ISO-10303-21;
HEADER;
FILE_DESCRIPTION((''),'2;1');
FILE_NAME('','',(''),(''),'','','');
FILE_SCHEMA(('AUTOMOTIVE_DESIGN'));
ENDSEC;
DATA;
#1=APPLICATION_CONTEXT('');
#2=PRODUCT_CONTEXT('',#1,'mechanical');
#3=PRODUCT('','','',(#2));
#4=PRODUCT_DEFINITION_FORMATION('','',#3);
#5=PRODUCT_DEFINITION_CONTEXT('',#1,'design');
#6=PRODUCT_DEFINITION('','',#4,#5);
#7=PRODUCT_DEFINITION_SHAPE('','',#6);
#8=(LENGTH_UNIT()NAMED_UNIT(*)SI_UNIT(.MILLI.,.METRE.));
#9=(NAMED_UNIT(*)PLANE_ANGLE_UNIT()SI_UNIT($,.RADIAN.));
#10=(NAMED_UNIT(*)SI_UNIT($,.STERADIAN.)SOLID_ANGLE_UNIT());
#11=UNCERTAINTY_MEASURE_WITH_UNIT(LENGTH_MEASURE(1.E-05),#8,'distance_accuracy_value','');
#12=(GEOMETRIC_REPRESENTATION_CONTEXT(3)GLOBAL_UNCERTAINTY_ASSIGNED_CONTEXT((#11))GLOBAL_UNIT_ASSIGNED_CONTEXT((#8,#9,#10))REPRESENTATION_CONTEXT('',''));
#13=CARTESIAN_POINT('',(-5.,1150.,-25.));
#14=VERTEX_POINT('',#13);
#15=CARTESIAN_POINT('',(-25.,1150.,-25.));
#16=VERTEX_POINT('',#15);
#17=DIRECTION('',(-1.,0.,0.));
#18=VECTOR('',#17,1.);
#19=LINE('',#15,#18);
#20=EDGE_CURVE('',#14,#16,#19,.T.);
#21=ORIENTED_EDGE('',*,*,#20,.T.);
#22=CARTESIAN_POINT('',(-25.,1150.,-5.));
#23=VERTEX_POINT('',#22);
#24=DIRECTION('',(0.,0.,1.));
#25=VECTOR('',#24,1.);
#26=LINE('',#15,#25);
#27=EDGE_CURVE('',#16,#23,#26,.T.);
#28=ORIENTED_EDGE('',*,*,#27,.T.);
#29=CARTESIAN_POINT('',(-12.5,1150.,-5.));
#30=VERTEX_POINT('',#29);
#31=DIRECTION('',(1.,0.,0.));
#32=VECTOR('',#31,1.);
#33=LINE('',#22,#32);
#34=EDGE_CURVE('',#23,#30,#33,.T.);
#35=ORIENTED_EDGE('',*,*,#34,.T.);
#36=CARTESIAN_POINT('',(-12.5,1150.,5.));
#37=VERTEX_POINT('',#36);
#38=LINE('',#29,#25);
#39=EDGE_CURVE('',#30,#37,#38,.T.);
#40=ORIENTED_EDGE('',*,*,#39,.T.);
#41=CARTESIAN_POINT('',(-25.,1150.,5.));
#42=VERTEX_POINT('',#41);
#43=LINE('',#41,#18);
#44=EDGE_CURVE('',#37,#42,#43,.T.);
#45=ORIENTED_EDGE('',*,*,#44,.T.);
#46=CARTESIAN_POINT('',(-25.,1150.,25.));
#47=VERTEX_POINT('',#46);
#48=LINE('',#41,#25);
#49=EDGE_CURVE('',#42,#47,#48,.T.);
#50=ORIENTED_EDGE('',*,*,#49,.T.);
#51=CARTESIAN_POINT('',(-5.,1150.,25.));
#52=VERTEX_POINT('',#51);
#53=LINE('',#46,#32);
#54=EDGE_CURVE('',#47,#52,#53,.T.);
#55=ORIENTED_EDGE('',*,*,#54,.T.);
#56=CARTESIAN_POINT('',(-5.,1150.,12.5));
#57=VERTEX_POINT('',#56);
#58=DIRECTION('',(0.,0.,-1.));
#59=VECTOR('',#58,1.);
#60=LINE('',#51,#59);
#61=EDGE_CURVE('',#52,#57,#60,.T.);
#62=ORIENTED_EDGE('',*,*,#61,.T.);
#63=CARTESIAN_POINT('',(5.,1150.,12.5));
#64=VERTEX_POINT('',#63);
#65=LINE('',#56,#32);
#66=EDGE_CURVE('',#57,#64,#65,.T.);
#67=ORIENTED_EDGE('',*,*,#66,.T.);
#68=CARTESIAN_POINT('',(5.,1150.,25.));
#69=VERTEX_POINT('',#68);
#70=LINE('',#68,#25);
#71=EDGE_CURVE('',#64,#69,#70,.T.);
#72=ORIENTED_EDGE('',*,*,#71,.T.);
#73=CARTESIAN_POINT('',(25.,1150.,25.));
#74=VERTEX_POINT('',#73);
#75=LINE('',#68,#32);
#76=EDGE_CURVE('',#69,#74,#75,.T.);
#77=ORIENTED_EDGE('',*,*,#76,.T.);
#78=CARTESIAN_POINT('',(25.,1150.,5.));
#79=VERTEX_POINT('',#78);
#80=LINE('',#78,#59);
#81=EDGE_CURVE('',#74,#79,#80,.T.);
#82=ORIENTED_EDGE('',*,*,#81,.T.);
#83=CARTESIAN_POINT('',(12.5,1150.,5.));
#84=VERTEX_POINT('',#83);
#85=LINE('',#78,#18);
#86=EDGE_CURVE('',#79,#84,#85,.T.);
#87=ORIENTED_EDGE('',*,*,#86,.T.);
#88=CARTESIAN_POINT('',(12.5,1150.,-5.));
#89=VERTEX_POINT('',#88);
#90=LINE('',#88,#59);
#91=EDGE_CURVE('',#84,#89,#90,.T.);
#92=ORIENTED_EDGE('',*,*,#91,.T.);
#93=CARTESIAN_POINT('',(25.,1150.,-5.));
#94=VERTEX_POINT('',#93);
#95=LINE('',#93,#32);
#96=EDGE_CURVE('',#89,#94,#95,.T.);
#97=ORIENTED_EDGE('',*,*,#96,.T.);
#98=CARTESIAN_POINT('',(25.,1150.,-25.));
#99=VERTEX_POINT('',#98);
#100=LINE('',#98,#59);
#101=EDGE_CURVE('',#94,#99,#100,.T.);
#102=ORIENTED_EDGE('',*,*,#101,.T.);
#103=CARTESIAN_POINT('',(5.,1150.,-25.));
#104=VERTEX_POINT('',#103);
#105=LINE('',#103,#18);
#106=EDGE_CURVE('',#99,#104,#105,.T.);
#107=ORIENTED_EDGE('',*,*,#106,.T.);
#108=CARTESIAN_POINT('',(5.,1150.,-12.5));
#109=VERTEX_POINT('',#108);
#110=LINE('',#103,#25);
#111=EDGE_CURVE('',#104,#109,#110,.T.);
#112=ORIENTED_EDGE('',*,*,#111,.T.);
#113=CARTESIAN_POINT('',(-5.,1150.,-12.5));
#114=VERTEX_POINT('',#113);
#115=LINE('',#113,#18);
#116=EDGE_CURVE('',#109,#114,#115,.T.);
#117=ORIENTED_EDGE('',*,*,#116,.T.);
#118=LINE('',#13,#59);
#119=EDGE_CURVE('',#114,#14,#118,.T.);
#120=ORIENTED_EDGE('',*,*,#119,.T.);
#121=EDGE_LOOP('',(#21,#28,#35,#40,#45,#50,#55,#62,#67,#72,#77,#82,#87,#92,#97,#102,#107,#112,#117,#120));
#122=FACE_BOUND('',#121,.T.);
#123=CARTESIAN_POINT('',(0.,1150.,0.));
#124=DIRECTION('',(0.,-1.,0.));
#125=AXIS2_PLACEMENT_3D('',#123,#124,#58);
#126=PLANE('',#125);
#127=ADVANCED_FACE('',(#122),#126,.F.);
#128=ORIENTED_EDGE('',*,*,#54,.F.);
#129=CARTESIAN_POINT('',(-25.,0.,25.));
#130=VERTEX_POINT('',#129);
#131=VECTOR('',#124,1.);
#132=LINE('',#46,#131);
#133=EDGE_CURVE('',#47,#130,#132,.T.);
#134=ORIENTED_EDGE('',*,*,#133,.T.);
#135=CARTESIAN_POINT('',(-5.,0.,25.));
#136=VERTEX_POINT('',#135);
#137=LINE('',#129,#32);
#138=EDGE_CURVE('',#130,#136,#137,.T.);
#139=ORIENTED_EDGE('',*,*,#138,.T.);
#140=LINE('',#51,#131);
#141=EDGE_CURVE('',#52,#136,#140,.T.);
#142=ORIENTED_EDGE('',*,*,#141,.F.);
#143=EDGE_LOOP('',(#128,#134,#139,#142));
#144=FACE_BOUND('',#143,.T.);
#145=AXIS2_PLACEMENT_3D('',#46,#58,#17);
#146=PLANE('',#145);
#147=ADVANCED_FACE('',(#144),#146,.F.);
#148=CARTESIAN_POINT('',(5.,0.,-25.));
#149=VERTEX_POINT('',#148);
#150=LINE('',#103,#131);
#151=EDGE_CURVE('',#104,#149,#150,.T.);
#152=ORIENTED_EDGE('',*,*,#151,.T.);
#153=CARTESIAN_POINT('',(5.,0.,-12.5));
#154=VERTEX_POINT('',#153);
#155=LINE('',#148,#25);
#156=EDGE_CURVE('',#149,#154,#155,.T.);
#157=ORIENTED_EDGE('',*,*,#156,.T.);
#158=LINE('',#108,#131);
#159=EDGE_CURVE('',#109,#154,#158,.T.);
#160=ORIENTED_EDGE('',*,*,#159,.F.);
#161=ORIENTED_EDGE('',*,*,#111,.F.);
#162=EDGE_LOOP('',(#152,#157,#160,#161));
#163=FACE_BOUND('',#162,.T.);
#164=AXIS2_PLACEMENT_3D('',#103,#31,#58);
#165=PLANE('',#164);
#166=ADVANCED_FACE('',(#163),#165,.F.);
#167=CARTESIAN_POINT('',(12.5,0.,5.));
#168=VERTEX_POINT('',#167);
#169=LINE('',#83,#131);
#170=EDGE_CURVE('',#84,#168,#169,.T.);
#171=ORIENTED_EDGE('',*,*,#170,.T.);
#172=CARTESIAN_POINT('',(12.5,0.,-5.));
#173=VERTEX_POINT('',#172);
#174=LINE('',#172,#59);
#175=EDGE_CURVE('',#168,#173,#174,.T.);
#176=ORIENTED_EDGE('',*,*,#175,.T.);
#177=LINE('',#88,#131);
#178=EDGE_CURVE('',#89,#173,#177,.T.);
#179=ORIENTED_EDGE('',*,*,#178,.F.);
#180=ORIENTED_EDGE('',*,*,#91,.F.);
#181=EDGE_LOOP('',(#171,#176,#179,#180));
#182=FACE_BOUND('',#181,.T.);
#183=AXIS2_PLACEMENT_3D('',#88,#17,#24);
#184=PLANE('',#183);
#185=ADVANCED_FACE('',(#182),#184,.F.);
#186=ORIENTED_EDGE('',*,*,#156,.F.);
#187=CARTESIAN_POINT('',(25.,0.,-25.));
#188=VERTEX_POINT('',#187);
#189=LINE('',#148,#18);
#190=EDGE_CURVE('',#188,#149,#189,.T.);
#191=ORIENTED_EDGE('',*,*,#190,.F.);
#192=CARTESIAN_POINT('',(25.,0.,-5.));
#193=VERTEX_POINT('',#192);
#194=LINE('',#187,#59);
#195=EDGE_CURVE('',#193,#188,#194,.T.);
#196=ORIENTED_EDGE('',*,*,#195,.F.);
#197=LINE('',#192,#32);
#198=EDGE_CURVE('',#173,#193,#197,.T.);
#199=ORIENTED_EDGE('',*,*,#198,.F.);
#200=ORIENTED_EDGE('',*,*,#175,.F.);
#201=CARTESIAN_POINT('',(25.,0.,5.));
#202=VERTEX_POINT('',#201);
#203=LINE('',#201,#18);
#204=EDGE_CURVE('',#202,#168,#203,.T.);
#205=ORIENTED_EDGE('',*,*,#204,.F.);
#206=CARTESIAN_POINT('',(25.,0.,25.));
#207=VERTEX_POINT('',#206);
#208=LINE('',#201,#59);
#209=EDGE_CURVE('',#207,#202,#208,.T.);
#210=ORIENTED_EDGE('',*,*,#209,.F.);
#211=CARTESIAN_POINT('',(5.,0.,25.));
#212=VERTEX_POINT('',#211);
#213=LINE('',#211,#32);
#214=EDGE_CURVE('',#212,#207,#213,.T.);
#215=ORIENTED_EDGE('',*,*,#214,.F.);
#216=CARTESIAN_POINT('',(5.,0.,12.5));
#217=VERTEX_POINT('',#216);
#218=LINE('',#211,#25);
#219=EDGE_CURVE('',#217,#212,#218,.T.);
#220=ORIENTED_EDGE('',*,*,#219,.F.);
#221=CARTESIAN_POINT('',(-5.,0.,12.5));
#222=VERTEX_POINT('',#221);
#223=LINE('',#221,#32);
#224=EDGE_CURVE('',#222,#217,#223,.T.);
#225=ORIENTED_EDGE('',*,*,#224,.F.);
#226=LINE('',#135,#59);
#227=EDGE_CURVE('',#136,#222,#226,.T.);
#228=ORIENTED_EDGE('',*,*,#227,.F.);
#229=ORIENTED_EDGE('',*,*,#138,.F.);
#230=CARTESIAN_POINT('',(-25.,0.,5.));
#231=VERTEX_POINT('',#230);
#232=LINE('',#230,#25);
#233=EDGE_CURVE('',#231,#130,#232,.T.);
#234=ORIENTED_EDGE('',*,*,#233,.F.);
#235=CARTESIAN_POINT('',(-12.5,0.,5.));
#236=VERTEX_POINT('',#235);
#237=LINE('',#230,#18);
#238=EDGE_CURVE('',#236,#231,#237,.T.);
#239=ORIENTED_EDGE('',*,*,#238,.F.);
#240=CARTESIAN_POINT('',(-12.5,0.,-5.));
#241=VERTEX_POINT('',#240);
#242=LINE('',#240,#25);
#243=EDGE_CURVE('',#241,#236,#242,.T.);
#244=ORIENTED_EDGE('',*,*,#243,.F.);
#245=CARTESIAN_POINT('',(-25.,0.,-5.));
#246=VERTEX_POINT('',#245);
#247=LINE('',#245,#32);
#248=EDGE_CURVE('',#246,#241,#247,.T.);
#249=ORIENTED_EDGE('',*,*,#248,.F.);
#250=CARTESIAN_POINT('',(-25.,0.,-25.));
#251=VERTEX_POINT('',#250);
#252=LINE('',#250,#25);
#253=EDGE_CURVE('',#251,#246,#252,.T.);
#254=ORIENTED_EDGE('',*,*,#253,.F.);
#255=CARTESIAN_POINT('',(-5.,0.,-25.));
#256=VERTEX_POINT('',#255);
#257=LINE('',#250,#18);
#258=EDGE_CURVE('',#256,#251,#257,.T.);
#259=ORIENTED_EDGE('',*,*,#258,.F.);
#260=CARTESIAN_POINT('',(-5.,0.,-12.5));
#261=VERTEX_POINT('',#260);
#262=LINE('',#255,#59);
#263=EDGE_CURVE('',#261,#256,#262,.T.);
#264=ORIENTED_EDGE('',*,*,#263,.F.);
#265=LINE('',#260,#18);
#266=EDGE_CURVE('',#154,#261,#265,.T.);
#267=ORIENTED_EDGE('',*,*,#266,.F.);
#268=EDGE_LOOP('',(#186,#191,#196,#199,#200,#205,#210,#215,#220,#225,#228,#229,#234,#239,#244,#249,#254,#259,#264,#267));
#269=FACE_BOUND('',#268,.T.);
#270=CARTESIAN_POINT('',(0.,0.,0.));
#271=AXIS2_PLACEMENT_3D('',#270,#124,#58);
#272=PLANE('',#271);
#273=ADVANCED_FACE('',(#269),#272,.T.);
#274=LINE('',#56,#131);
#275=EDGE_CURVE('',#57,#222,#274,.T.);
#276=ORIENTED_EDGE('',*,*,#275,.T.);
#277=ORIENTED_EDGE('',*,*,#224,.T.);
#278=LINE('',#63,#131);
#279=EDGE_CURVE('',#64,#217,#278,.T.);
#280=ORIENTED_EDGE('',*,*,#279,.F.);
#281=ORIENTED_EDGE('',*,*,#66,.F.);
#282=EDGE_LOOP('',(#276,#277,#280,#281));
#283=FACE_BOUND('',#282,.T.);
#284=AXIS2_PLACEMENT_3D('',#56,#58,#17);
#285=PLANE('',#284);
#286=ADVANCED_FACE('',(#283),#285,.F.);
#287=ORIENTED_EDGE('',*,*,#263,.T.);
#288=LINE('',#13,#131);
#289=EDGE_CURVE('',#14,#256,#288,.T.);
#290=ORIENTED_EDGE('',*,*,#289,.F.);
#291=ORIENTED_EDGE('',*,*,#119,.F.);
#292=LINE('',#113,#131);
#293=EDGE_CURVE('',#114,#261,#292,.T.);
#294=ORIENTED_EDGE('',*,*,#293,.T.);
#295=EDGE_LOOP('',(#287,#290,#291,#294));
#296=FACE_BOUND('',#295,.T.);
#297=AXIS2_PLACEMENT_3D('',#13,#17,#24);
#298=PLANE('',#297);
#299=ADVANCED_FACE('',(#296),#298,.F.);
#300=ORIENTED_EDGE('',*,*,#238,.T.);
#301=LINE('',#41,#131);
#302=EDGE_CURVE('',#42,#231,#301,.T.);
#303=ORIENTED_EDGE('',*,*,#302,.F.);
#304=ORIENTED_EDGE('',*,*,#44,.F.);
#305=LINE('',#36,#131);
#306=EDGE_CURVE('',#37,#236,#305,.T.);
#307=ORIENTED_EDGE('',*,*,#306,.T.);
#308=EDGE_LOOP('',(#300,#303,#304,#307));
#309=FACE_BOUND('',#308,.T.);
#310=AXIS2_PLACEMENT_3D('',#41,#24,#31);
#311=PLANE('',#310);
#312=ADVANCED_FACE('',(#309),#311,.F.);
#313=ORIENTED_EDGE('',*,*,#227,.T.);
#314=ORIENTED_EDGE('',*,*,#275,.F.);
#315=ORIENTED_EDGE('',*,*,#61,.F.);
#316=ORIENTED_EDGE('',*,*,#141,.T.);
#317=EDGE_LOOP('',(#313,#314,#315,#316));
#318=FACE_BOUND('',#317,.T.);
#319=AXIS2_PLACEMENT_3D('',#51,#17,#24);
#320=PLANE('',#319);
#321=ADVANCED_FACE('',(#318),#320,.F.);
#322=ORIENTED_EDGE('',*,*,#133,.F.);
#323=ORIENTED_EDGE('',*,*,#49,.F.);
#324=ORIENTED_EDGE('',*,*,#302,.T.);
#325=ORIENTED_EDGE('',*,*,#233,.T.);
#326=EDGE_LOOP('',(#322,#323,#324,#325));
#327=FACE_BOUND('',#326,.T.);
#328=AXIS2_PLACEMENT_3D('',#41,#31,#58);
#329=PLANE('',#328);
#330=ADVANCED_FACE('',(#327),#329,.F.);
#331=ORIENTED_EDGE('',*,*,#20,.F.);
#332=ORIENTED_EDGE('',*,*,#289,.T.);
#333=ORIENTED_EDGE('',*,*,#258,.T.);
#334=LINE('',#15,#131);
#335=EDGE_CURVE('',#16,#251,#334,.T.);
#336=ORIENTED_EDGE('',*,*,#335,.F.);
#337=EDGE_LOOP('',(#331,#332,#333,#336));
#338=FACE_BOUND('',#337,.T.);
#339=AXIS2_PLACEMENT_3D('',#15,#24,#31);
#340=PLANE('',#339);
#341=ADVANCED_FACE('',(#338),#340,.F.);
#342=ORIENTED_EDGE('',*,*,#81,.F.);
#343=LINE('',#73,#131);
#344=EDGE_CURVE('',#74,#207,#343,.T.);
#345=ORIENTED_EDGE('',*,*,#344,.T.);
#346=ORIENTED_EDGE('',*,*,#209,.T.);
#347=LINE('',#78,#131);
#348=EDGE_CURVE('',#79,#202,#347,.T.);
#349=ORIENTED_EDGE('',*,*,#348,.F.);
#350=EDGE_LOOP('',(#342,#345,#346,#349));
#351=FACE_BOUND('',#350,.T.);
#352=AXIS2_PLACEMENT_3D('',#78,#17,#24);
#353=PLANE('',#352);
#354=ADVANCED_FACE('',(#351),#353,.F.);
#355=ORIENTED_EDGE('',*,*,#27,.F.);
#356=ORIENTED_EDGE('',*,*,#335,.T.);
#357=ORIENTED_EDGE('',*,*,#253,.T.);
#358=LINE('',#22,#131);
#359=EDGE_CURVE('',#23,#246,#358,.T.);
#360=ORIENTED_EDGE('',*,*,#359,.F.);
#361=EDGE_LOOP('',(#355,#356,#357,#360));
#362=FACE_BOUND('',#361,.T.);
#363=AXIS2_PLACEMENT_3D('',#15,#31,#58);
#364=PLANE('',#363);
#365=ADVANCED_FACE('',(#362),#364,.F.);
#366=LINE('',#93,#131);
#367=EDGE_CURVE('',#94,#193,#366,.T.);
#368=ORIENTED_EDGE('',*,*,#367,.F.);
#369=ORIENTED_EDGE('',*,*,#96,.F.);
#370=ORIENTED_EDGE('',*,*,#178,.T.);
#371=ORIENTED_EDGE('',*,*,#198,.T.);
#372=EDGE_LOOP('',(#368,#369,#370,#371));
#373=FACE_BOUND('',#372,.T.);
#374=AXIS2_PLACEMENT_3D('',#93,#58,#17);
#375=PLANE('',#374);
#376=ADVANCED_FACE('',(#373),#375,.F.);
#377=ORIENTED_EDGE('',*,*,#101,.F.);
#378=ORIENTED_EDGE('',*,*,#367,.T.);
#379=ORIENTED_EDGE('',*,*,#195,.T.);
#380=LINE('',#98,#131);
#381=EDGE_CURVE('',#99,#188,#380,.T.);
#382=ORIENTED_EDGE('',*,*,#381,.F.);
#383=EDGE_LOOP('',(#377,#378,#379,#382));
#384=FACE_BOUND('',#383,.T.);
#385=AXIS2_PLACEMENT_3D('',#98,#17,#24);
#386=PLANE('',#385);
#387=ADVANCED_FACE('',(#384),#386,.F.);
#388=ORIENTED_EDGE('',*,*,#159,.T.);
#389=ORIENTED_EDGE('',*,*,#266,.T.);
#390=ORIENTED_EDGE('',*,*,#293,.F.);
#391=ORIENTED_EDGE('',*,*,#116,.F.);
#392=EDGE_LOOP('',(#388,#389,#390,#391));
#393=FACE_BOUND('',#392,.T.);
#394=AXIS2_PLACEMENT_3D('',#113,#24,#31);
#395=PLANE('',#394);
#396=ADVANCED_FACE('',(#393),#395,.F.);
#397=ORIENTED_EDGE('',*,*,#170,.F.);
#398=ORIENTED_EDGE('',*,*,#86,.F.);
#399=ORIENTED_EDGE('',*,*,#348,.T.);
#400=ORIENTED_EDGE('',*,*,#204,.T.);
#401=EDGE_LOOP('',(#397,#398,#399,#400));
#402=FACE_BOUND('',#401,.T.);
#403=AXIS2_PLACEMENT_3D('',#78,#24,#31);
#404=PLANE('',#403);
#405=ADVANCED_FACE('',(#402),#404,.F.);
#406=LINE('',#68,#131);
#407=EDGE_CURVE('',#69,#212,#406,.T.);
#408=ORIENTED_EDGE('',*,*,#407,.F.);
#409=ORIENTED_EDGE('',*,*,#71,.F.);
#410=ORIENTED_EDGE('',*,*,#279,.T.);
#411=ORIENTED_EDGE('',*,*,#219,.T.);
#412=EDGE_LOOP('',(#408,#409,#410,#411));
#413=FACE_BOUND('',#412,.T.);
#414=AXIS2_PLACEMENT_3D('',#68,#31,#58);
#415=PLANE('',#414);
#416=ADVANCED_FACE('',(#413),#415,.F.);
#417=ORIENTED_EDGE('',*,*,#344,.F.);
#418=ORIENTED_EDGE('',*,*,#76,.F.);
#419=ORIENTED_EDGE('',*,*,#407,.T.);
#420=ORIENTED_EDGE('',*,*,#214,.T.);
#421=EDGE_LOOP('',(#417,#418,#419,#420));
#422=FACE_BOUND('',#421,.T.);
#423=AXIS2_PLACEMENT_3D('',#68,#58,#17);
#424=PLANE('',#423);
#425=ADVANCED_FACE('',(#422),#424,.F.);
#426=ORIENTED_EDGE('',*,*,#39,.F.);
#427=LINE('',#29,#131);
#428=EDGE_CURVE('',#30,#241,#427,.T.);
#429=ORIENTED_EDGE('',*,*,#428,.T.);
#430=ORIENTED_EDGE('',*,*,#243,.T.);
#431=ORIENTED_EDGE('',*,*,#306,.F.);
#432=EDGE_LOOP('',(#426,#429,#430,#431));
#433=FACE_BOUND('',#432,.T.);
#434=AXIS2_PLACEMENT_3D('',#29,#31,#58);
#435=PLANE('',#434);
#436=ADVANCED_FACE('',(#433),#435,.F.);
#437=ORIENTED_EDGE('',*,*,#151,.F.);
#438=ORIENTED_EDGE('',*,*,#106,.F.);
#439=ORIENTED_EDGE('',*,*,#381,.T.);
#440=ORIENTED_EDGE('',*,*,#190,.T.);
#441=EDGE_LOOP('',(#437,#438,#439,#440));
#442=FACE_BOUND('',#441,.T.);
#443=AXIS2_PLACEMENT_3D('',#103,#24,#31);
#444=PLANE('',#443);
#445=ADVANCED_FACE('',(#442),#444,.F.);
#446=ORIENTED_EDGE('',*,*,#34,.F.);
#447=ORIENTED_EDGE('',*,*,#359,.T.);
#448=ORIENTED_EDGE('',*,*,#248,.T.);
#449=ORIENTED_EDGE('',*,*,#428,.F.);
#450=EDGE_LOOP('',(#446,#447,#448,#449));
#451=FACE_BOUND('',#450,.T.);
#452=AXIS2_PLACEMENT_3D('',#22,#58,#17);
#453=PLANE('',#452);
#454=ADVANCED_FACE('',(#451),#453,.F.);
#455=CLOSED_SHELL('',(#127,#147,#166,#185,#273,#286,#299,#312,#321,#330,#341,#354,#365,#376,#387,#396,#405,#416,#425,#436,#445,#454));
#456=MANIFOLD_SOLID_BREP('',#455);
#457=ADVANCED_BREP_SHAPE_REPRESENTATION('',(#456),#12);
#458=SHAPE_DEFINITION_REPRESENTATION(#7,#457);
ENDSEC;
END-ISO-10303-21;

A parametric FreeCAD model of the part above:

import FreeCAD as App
import Part
import Sketcher
from FreeCAD import Vector
Q = App.Units.Quantity


def add_polygon(sketch, points):
    """Adds a closed chain of lines whose ends are joined by coincident constraints."""
    first, n = sketch.GeometryCount, len(points)
    for a, b in zip(points, points[1:] + points[:1]):
        sketch.addGeometry(Part.LineSegment(App.Vector(*a, 0), App.Vector(*b, 0)), False)
    for i in range(n):
        sketch.addConstraint(Sketcher.Constraint("Coincident", first + i, 2, first + (i + 1) % n, 1))

doc = App.newDocument("Part")
body = doc.addObject("PartDesign::Body", "Body")

sketch1 = body.newObject("Sketcher::SketchObject", "Sketch")
sketch1.AttachmentSupport = (doc.getObject("XZ_Plane"), [""])
sketch1.MapMode = "FlatFace"
add_polygon(sketch1, [(-5, -25), (-25, -25), (-25, -5), (-12, -5), (-12, 5), (-25, 5), (-25, 25), (-5, 25), (-5, 12), (5, 12), (5, 25), (25, 25), (25, 5), (12, 5), (12, -5), (25, -5), (25, -25), (5, -25), (5, -12), (-5, -12)])
sketch1.addConstraint([
    Sketcher.Constraint("Horizontal", 0),
    Sketcher.Constraint("Vertical", 1),
    Sketcher.Constraint("Horizontal", 2),
    Sketcher.Constraint("Vertical", 3),
    Sketcher.Constraint("Horizontal", 4),
    Sketcher.Constraint("Vertical", 5),
    Sketcher.Constraint("Horizontal", 6),
    Sketcher.Constraint("Vertical", 7),
    Sketcher.Constraint("Horizontal", 8),
    Sketcher.Constraint("Vertical", 9),
    Sketcher.Constraint("Horizontal", 10),
    Sketcher.Constraint("Vertical", 11),
    Sketcher.Constraint("Horizontal", 12),
    Sketcher.Constraint("Vertical", 13),
    Sketcher.Constraint("Horizontal", 14),
    Sketcher.Constraint("Vertical", 15),
    Sketcher.Constraint("Horizontal", 16),
    Sketcher.Constraint("Vertical", 17),
    Sketcher.Constraint("Horizontal", 18),
    Sketcher.Constraint("Vertical", 19),
    Sketcher.Constraint("Symmetric", 0, 2, 10, 2, -1, 1),
    Sketcher.Constraint("Symmetric", 2, 2, 12, 2, -1, 1),
    Sketcher.Constraint("Symmetric", 4, 2, 14, 2, -1, 1),
    Sketcher.Constraint("Symmetric", 6, 2, 16, 2, -1, 1),
    Sketcher.Constraint("Symmetric", 8, 2, 18, 2, -1, 1),
    Sketcher.Constraint("Symmetric", 6, 2, 9, 2, -2),
    Sketcher.Constraint("Symmetric", 4, 2, 11, 2, -2),
    Sketcher.Constraint("Equal", 16, 1),
    Sketcher.Constraint("Equal", 18, 3),
    Sketcher.Constraint("Equal", 14, 7),
    Sketcher.Constraint("DistanceX", 0, 2, 0, 1, Q("20 mm")),
    Sketcher.Constraint("DistanceX", 8, 1, 8, 2, Q("10 mm")),
    Sketcher.Constraint("DistanceX", 2, 1, 2, 2, Q("12.5 mm")),
])
pad1 = body.newObject("PartDesign::Pad", "Pad")
pad1.Profile = sketch1
pad1.Length = 1150
pad1.Reversed = True

sketch2 = body.newObject("Sketcher::SketchObject", "Sketch001")
sketch2.AttachmentSupport = (doc.getObject("XZ_Plane"), [""])
sketch2.MapMode = "FlatFace"
add_polygon(sketch2, [(-5, -25), (-25, -25), (-25, -5), (-12, -5), (-12, 5), (-25, 5), (-25, 25), (-5, 25), (-5, 12), (5, 12), (5, 25), (25, 25), (25, 5), (12, 5), (12, -5), (25, -5), (25, -25), (5, -25), (5, -12), (-5, -12)])
sketch2.addConstraint([
    Sketcher.Constraint("Horizontal", 0),
    Sketcher.Constraint("Vertical", 1),
    Sketcher.Constraint("Horizontal", 2),
    Sketcher.Constraint("Vertical", 3),
    Sketcher.Constraint("Horizontal", 4),
    Sketcher.Constraint("Vertical", 5),
    Sketcher.Constraint("Horizontal", 6),
    Sketcher.Constraint("Vertical", 7),
    Sketcher.Constraint("Horizontal", 8),
    Sketcher.Constraint("Vertical", 9),
    Sketcher.Constraint("Horizontal", 10),
    Sketcher.Constraint("Vertical", 11),
    Sketcher.Constraint("Horizontal", 12),
    Sketcher.Constraint("Vertical", 13),
    Sketcher.Constraint("Horizontal", 14),
    Sketcher.Constraint("Vertical", 15),
    Sketcher.Constraint("Horizontal", 16),
    Sketcher.Constraint("Vertical", 17),
    Sketcher.Constraint("Horizontal", 18),
    Sketcher.Constraint("Vertical", 19),
    Sketcher.Constraint("Symmetric", 0, 2, 10, 2, -1, 1),
    Sketcher.Constraint("Symmetric", 2, 2, 12, 2, -1, 1),
    Sketcher.Constraint("Symmetric", 4, 2, 14, 2, -1, 1),
    Sketcher.Constraint("Symmetric", 6, 2, 16, 2, -1, 1),
    Sketcher.Constraint("Symmetric", 8, 2, 18, 2, -1, 1),
    Sketcher.Constraint("Symmetric", 6, 2, 9, 2, -2),
    Sketcher.Constraint("Symmetric", 4, 2, 11, 2, -2),
    Sketcher.Constraint("Equal", 16, 1),
    Sketcher.Constraint("Equal", 18, 3),
    Sketcher.Constraint("Equal", 14, 7),
    Sketcher.Constraint("DistanceX", 0, 2, 0, 1, Q("20 mm")),
    Sketcher.Constraint("DistanceX", 8, 1, 8, 2, Q("10 mm")),
    Sketcher.Constraint("DistanceX", 2, 1, 2, 2, Q("12.5 mm")),
])
pad2 = body.newObject("PartDesign::Pad", "Pad001")
pad2.Profile = sketch2
pad2.Length = 10
pad2.Reversed = True

doc.recompute()
